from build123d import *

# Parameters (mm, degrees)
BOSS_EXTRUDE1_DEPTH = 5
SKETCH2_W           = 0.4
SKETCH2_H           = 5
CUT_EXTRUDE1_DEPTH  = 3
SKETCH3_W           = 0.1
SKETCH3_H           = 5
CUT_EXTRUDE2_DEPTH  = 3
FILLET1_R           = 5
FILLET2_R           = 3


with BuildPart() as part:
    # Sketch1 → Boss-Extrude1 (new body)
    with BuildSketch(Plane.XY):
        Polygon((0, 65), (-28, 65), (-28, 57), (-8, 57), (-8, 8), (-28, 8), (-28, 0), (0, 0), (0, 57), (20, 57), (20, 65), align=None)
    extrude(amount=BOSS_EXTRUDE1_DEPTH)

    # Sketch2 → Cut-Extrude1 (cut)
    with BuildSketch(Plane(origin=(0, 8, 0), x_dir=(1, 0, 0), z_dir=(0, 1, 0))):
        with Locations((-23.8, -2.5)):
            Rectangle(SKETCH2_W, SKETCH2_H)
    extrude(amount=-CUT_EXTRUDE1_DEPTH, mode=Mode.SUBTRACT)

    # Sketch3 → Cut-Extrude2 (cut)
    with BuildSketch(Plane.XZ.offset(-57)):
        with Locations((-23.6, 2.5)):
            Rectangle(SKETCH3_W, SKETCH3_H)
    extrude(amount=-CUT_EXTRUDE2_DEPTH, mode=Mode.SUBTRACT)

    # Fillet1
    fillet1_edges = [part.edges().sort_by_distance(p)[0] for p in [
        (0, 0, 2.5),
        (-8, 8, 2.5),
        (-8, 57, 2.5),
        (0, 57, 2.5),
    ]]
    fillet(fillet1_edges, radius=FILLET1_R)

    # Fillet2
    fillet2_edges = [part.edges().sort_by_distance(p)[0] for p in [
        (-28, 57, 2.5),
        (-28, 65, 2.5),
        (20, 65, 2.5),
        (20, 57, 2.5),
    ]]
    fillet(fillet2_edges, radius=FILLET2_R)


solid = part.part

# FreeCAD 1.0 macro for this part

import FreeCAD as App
import Part
import Sketcher


def edges_at(feature, points):
    """Names of the edges that pass closest to the given points."""
    edges = feature.Shape.Edges
    near = lambda p: min(range(len(edges)), key=lambda i: edges[i].distToShape(Part.Vertex(*p))[0])
    return sorted({f"Edge{near(p) + 1}" for p in points})

doc = App.newDocument("Part")
body = doc.addObject("PartDesign::Body", "Body")

sketch1 = body.newObject("Sketcher::SketchObject", "Sketch")
sketch1.AttachmentSupport = (doc.getObject("XY_Plane"), [""])
sketch1.MapMode = "FlatFace"
sketch1.addGeometry(Part.LineSegment(App.Vector(-28, 65, 0), App.Vector(-28, 57, 0)), False)
sketch1.addGeometry(Part.LineSegment(App.Vector(-28, 57, 0), App.Vector(-8, 57, 0)), False)
sketch1.addGeometry(Part.LineSegment(App.Vector(-8, 57, 0), App.Vector(-8, 8, 0)), False)
sketch1.addGeometry(Part.LineSegment(App.Vector(-8, 8, 0), App.Vector(-28, 8, 0)), False)
sketch1.addGeometry(Part.LineSegment(App.Vector(-28, 8, 0), App.Vector(-28, 0, 0)), False)
sketch1.addGeometry(Part.LineSegment(App.Vector(-28, 0, 0), App.Vector(0, 0, 0)), False)
sketch1.addGeometry(Part.LineSegment(App.Vector(0, 0, 0), App.Vector(0, 57, 0)), False)
sketch1.addGeometry(Part.LineSegment(App.Vector(0, 57, 0), App.Vector(20, 57, 0)), False)
sketch1.addGeometry(Part.LineSegment(App.Vector(20, 57, 0), App.Vector(20, 65, 0)), False)
sketch1.addGeometry(Part.LineSegment(App.Vector(20, 65, 0), App.Vector(-28, 65, 0)), False)
sketch1.addConstraint(Sketcher.Constraint("Coincident", 0, 2, 1, 1))
sketch1.addConstraint(Sketcher.Constraint("Coincident", 1, 2, 2, 1))
sketch1.addConstraint(Sketcher.Constraint("Coincident", 2, 2, 3, 1))
sketch1.addConstraint(Sketcher.Constraint("Coincident", 3, 2, 4, 1))
sketch1.addConstraint(Sketcher.Constraint("Coincident", 4, 2, 5, 1))
sketch1.addConstraint(Sketcher.Constraint("Coincident", 5, 2, 6, 1))
sketch1.addConstraint(Sketcher.Constraint("Coincident", 6, 2, 7, 1))
sketch1.addConstraint(Sketcher.Constraint("Coincident", 7, 2, 8, 1))
sketch1.addConstraint(Sketcher.Constraint("Coincident", 8, 2, 9, 1))
sketch1.addConstraint(Sketcher.Constraint("Coincident", 9, 2, 0, 1))
sketch1.addConstraint(Sketcher.Constraint("Vertical", 0))
sketch1.addConstraint(Sketcher.Constraint("Horizontal", 1))
sketch1.addConstraint(Sketcher.Constraint("Vertical", 2))
sketch1.addConstraint(Sketcher.Constraint("Horizontal", 3))
sketch1.addConstraint(Sketcher.Constraint("Vertical", 4))
sketch1.addConstraint(Sketcher.Constraint("Horizontal", 5))
sketch1.addConstraint(Sketcher.Constraint("Vertical", 6))
sketch1.addConstraint(Sketcher.Constraint("Horizontal", 7))
sketch1.addConstraint(Sketcher.Constraint("Vertical", 8))
sketch1.addConstraint(Sketcher.Constraint("Horizontal", 9))
sketch1.addConstraint(Sketcher.Constraint("Coincident", 5, 2, -1, 1))
sketch1.addConstraint(Sketcher.Constraint("Horizontal", 1, 2, 6, 2))
sketch1.addConstraint(Sketcher.Constraint("Vertical", 0, 2, 3, 2))
sketch1.addConstraint(Sketcher.Constraint("Equal", 3, 7))
sketch1.addConstraint(Sketcher.Constraint("Equal", 0, 4))
sketch1.addConstraint(Sketcher.Constraint("DistanceX", 1, 1, 1, 2, 20.0))
sketch1.addConstraint(Sketcher.Constraint("DistanceX", 5, 1, 5, 2, 28.0))
sketch1.addConstraint(Sketcher.Constraint("DistanceY", 0, 2, 0, 1, 8.0))
sketch1.addConstraint(Sketcher.Constraint("DistanceY", 2, 2, 2, 1, 49.0))
pad1 = body.newObject("PartDesign::Pad", "Pad")
pad1.Profile = sketch1
pad1.Length = 5

sketch2 = body.newObject("Sketcher::SketchObject", "Sketch001")
sketch2.AttachmentSupport = (doc.getObject("XZ_Plane"), [""])
sketch2.MapMode = "FlatFace"
sketch2.AttachmentOffset = App.Placement(App.Vector(0, 0, -8), App.Rotation())
sketch2.addGeometry(Part.LineSegment(App.Vector(-24, 0, 0), App.Vector(-24, 5, 0)), False)
sketch2.addGeometry(Part.LineSegment(App.Vector(-24, 5, 0), App.Vector(-23.6, 5, 0)), False)
sketch2.addGeometry(Part.LineSegment(App.Vector(-23.6, 5, 0), App.Vector(-23.6, 0, 0)), False)
sketch2.addGeometry(Part.LineSegment(App.Vector(-23.6, 0, 0), App.Vector(-24, 0, 0)), False)
sketch2.addConstraint(Sketcher.Constraint("Coincident", 0, 2, 1, 1))
sketch2.addConstraint(Sketcher.Constraint("Coincident", 1, 2, 2, 1))
sketch2.addConstraint(Sketcher.Constraint("Coincident", 2, 2, 3, 1))
sketch2.addConstraint(Sketcher.Constraint("Coincident", 3, 2, 0, 1))
sketch2.addConstraint(Sketcher.Constraint("Vertical", 0))
sketch2.addConstraint(Sketcher.Constraint("Horizontal", 1))
sketch2.addConstraint(Sketcher.Constraint("Vertical", 2))
sketch2.addConstraint(Sketcher.Constraint("Horizontal", 3))
sketch2.addConstraint(Sketcher.Constraint("PointOnObject", 2, 2, -1))
sketch2.addConstraint(Sketcher.Constraint("DistanceY", 0, 1, 0, 2, 5.0))
sketch2.addConstraint(Sketcher.Constraint("DistanceX", 1, 1, 1, 2, 0.4))
sketch2.addConstraint(Sketcher.Constraint("DistanceX", 0, 2, -1, 1, 24.0))
pocket1 = body.newObject("PartDesign::Pocket", "Pocket")
pocket1.Profile = sketch2
pocket1.Length = 3
pocket1.Reversed = True

sketch3 = body.newObject("Sketcher::SketchObject", "Sketch002")
sketch3.AttachmentSupport = (doc.getObject("XZ_Plane"), [""])
sketch3.MapMode = "FlatFace"
sketch3.AttachmentOffset = App.Placement(App.Vector(0, 0, -57), App.Rotation())
sketch3.addGeometry(Part.LineSegment(App.Vector(-23.65, 5, 0), App.Vector(-23.65, 0, 0)), False)
sketch3.addGeometry(Part.LineSegment(App.Vector(-23.65, 0, 0), App.Vector(-23.55, 0, 0)), False)
sketch3.addGeometry(Part.LineSegment(App.Vector(-23.55, 0, 0), App.Vector(-23.55, 5, 0)), False)
sketch3.addGeometry(Part.LineSegment(App.Vector(-23.55, 5, 0), App.Vector(-23.65, 5, 0)), False)
sketch3.addConstraint(Sketcher.Constraint("Coincident", 0, 2, 1, 1))
sketch3.addConstraint(Sketcher.Constraint("Coincident", 1, 2, 2, 1))
sketch3.addConstraint(Sketcher.Constraint("Coincident", 2, 2, 3, 1))
sketch3.addConstraint(Sketcher.Constraint("Coincident", 3, 2, 0, 1))
sketch3.addConstraint(Sketcher.Constraint("Vertical", 0))
sketch3.addConstraint(Sketcher.Constraint("Horizontal", 1))
sketch3.addConstraint(Sketcher.Constraint("Vertical", 2))
sketch3.addConstraint(Sketcher.Constraint("Horizontal", 3))
sketch3.addConstraint(Sketcher.Constraint("PointOnObject", 0, 2, -1))
sketch3.addConstraint(Sketcher.Constraint("DistanceY", 0, 2, 0, 1, 5.0))
sketch3.addConstraint(Sketcher.Constraint("DistanceX", 1, 1, 1, 2, 0.1))
sketch3.addConstraint(Sketcher.Constraint("DistanceX", 0, 2, -1, 1, 23.65))
pocket2 = body.newObject("PartDesign::Pocket", "Pocket001")
pocket2.Profile = sketch3
pocket2.Length = 3
doc.recompute()

fillet = body.newObject("PartDesign::Fillet", "Fillet")
fillet.Base = (pocket2, edges_at(pocket2, [
    (0, 0, 2.5),
    (-8, 8, 2.5),
    (-8, 57, 2.5),
    (0, 57, 2.5),
]))
fillet.Radius = 5
doc.recompute()

fillet2 = body.newObject("PartDesign::Fillet", "Fillet001")
fillet2.Base = (fillet, edges_at(fillet, [
    (-28, 57, 2.5),
    (-28, 65, 2.5),
    (20, 65, 2.5),
    (20, 57, 2.5),
]))
fillet2.Radius = 3

doc.recompute()
